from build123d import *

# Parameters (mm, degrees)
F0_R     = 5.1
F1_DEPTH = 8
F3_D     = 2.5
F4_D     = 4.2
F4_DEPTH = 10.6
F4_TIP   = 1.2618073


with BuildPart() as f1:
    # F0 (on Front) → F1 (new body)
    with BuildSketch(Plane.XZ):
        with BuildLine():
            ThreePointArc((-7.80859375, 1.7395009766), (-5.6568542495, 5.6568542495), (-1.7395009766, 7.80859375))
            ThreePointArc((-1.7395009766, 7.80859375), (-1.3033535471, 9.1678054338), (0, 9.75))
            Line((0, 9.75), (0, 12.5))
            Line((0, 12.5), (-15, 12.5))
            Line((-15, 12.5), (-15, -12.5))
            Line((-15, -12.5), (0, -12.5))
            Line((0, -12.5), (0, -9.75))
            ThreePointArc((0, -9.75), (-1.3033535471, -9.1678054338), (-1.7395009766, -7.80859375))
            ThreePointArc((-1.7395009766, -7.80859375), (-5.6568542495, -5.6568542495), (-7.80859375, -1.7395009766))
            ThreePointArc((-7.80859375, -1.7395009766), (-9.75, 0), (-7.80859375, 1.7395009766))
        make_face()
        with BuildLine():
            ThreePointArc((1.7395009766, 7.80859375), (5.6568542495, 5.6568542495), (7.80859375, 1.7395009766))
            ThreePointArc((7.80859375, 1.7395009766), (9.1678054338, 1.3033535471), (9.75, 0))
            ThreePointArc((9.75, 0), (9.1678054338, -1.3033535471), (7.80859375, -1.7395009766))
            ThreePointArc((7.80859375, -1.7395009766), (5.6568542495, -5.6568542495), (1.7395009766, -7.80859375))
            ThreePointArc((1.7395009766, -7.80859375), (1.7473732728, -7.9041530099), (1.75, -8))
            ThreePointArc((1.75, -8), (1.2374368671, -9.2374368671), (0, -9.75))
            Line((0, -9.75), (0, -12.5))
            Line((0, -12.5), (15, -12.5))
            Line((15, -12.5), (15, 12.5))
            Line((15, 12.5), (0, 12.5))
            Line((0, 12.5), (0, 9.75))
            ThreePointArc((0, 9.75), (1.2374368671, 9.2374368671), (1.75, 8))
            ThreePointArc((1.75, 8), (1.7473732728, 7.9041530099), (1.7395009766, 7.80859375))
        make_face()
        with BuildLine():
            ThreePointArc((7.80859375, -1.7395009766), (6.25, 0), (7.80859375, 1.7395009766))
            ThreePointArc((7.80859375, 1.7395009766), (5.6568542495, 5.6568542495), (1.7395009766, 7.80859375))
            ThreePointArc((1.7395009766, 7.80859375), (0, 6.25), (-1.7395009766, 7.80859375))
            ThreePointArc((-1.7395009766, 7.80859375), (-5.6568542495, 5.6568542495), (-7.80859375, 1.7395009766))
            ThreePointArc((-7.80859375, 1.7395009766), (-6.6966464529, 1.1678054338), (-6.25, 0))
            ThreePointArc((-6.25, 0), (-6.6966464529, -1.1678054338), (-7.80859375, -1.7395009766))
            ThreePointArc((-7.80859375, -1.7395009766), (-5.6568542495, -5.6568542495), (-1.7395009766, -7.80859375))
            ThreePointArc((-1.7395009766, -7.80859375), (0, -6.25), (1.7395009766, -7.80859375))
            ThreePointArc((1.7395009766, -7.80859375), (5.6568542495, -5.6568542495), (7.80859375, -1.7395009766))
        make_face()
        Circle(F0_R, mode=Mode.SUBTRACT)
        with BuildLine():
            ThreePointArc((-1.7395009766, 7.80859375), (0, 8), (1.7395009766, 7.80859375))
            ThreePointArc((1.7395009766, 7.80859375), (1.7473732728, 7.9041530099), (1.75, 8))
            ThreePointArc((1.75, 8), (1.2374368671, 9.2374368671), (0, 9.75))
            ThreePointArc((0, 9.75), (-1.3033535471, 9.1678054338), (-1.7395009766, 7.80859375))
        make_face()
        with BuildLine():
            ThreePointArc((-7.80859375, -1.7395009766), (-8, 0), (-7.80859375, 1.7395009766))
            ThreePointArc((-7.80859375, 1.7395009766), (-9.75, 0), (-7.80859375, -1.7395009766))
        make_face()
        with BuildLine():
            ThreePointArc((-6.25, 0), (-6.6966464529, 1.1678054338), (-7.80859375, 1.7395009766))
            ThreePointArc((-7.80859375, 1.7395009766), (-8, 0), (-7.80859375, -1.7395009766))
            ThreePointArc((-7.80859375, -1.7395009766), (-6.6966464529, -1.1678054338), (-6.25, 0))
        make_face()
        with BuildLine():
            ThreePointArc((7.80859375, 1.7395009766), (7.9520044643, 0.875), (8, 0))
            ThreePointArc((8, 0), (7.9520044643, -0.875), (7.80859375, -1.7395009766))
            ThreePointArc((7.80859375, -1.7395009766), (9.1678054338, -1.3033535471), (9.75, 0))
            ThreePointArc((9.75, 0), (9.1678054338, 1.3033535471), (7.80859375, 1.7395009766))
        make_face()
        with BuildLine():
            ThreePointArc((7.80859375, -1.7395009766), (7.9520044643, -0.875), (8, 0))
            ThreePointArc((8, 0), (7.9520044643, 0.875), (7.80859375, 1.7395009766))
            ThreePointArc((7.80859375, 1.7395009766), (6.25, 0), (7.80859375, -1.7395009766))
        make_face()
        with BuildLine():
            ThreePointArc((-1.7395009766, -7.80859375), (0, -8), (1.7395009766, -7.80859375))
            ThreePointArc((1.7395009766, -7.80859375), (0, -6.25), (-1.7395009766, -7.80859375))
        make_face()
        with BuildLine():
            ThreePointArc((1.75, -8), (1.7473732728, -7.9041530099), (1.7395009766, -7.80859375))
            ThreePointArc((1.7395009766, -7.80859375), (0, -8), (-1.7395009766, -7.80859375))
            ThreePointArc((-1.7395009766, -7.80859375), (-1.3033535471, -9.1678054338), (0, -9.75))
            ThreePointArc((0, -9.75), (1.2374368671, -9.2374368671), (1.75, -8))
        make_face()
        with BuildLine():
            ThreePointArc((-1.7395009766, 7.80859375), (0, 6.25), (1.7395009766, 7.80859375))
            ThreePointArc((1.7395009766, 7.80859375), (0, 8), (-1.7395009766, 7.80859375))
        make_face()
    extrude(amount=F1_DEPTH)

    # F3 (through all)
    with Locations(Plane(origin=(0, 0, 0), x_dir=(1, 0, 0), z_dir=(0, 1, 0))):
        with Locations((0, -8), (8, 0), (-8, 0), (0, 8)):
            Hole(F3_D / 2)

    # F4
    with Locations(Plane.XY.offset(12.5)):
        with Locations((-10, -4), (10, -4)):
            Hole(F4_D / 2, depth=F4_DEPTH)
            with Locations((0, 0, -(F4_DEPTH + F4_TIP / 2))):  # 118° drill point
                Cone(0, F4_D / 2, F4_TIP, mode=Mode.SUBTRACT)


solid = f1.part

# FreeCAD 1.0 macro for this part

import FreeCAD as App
import Part
import Sketcher
from FreeCAD import Vector

doc = App.newDocument("Part")
body = doc.addObject("PartDesign::Body", "Body")

sketch1 = body.newObject("Sketcher::SketchObject", "Sketch")
sketch1.AttachmentSupport = (doc.getObject("XZ_Plane"), [""])
sketch1.MapMode = "FlatFace"
sketch1.addGeometry([
    Part.LineSegment(Vector(-15, 12, 0), Vector(-15, -12, 0)),
    Part.LineSegment(Vector(-15, -12, 0), Vector(15, -12, 0)),
    Part.LineSegment(Vector(15, -12, 0), Vector(15, 12, 0)),
    Part.LineSegment(Vector(15, 12, 0), Vector(-15, 12, 0)),
    Part.Circle(Vector(0, 0, 0), Vector(0, 0, 1), 5),
], False)
sketch1.addConstraint([
    Sketcher.Constraint("Coincident", 0, 2, 1, 1),
    Sketcher.Constraint("Coincident", 1, 2, 2, 1),
    Sketcher.Constraint("Coincident", 2, 2, 3, 1),
    Sketcher.Constraint("Coincident", 3, 2, 0, 1),
    Sketcher.Constraint("Vertical", 0),
    Sketcher.Constraint("Horizontal", 1),
    Sketcher.Constraint("Vertical", 2),
    Sketcher.Constraint("Horizontal", 3),
    Sketcher.Constraint("Coincident", 4, 3, -1, 1),
    Sketcher.Constraint("Symmetric", 0, 2, 2, 2, -1, 1),
    Sketcher.Constraint("Diameter", 4, 10.2),
    Sketcher.Constraint("DistanceX", 1, 1, 1, 2, 30.0),
    Sketcher.Constraint("DistanceY", 0, 2, 0, 1, 25.0),
])
pad1 = body.newObject("PartDesign::Pad", "Pad")
pad1.Profile = sketch1
pad1.Length = 8

sketch2 = body.newObject("Sketcher::SketchObject", "Sketch001")
sketch2.AttachmentSupport = (doc.getObject("XZ_Plane"), [""])
sketch2.MapMode = "FlatFace"
sketch2.addGeometry([
    Part.Circle(Vector(0, 8, 0), Vector(0, 0, 1), 1.2),
    Part.Circle(Vector(8, 0, 0), Vector(0, 0, 1), 1.2),
    Part.Circle(Vector(-8, 0, 0), Vector(0, 0, 1), 1.2),
    Part.Circle(Vector(0, -8, 0), Vector(0, 0, 1), 1.2),
], False)
sketch2.addConstraint([
    Sketcher.Constraint("Equal", 0, 1),
    Sketcher.Constraint("Equal", 1, 2),
    Sketcher.Constraint("Equal", 2, 3),
    Sketcher.Constraint("Symmetric", 1, 3, 2, 3, -1, 1),
    Sketcher.Constraint("Symmetric", 0, 3, 3, 3, -1, 1),
    Sketcher.Constraint("PointOnObject", 0, 3, -2),
    Sketcher.Constraint("PointOnObject", 1, 3, -1),
    Sketcher.Constraint("Diameter", 0, 2.5),
    Sketcher.Constraint("DistanceY", -1, 1, 0, 3, 8.0),
    Sketcher.Constraint("DistanceX", -1, 1, 1, 3, 8.0),
])
doc.recompute()
hole = body.newObject("PartDesign::Hole", "Hole")
hole.Profile = sketch2
hole.ThreadType = "None"
hole.Diameter = 2.5
hole.DepthType = "ThroughAll"
hole.Reversed = True

sketch3 = body.newObject("Sketcher::SketchObject", "Sketch002")
sketch3.AttachmentSupport = (doc.getObject("XY_Plane"), [""])
sketch3.MapMode = "FlatFace"
sketch3.AttachmentOffset = App.Placement(Vector(0, 0, 12.5), App.Rotation())
sketch3.addGeometry([
    Part.Circle(Vector(-10, -4, 0), Vector(0, 0, 1), 2.1),
    Part.Circle(Vector(10, -4, 0), Vector(0, 0, 1), 2.1),
], False)
sketch3.addConstraint([
    Sketcher.Constraint("Equal", 0, 1),
    Sketcher.Constraint("Symmetric", 0, 3, 1, 3, -2),
    Sketcher.Constraint("Diameter", 0, 4.2),
    Sketcher.Constraint("DistanceX", 0, 3, -1, 1, 10.0),
    Sketcher.Constraint("DistanceY", 0, 3, -1, 1, 4.0),
])
doc.recompute()
hole2 = body.newObject("PartDesign::Hole", "Hole001")
hole2.Profile = sketch3
hole2.ThreadType = "None"
hole2.Diameter = 4.2
hole2.DepthType = "Dimension"
hole2.Depth = 10.6
hole2.DrillPoint = "Angled"
hole2.DrillPointAngle = 118

doc.recompute()
